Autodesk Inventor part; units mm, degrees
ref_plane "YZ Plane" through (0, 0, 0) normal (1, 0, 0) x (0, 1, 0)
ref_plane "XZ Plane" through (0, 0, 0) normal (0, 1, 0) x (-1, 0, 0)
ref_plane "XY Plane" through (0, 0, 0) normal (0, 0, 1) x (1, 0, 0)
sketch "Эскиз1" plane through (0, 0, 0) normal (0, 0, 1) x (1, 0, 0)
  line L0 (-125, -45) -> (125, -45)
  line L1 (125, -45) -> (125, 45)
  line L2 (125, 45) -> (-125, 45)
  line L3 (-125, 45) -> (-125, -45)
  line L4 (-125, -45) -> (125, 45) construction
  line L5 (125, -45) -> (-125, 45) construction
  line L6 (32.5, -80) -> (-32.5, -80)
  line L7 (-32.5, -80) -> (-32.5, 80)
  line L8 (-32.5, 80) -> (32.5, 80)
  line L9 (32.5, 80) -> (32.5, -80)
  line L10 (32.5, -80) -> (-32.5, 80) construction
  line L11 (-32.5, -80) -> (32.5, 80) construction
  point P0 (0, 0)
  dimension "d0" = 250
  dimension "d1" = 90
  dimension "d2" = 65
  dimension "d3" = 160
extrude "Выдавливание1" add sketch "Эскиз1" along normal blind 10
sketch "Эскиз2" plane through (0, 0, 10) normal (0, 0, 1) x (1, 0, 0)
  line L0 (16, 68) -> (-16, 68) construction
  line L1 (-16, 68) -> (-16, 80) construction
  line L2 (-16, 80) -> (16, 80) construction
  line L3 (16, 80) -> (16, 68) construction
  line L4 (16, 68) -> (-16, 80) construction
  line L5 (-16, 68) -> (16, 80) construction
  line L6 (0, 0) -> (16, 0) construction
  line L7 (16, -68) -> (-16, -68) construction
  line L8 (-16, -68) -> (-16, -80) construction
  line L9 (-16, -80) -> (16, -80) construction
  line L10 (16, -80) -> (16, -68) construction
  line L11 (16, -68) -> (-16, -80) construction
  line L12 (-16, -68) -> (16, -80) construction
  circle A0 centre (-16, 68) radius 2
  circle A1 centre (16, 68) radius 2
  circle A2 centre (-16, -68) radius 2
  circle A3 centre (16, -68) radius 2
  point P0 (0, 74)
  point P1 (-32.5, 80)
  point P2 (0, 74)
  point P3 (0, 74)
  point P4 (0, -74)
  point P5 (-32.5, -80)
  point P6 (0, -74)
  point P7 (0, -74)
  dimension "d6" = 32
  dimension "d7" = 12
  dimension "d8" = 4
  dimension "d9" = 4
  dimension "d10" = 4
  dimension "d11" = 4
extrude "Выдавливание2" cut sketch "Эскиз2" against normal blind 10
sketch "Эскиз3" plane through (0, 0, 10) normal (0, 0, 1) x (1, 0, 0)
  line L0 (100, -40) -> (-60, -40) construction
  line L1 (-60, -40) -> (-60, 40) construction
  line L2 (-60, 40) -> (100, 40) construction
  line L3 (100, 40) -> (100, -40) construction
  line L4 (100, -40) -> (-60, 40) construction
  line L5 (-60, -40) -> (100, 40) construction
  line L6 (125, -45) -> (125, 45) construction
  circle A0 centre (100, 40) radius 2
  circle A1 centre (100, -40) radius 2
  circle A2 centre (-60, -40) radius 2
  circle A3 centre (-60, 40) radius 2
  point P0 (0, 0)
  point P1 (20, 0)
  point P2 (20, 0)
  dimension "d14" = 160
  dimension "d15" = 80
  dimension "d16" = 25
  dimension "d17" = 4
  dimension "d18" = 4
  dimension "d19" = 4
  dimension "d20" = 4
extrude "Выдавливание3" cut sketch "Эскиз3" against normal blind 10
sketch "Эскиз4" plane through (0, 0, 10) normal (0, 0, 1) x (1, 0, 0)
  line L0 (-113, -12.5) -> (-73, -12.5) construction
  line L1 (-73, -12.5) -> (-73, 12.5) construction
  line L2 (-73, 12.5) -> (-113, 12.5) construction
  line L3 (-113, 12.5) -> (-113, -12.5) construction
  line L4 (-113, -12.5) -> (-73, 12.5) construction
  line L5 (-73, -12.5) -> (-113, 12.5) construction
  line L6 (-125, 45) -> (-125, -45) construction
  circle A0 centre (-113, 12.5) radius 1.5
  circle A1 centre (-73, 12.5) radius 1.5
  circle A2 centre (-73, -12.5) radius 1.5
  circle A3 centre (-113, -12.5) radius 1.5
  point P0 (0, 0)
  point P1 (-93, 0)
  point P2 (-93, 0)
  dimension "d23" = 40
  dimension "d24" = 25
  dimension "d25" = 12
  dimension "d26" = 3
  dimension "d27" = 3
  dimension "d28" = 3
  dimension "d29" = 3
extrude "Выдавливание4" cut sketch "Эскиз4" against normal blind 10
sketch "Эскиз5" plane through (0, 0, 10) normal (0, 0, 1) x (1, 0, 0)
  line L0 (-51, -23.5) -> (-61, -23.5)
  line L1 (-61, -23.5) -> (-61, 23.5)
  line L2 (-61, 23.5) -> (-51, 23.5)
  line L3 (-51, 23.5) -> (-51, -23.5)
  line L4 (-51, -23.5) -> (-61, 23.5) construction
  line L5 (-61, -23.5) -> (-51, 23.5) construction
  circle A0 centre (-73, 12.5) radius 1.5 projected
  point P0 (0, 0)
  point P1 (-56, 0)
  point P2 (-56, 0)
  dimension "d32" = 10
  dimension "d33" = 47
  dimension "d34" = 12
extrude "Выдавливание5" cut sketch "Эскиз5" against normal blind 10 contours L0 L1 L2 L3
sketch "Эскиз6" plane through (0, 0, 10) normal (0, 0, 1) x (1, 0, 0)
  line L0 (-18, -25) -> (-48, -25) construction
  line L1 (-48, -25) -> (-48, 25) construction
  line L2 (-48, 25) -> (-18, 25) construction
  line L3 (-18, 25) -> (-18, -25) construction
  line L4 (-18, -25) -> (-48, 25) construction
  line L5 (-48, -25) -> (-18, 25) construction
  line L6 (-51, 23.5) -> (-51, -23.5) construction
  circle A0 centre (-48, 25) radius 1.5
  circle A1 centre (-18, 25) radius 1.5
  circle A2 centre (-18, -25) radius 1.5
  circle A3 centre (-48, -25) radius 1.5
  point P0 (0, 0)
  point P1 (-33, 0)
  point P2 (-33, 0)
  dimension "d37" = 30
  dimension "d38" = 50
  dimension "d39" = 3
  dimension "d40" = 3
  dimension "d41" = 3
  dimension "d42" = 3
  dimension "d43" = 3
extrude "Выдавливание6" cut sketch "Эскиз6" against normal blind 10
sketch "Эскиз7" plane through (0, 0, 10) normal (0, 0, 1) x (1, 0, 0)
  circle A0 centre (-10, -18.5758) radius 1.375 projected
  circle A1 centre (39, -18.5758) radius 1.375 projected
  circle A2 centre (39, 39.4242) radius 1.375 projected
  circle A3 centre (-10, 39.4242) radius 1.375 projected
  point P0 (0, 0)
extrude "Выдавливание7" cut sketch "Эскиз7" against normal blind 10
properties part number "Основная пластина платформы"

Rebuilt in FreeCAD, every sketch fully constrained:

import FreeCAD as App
import Part
import Sketcher

V = App.Vector

doc = App.newDocument("Part")
params = doc.addObject("Spreadsheet::Sheet", "Params")
for row, (alias, value) in enumerate([
    ("sketch1_width", "65 mm"),
    ("sketch1_height", "90 mm"),
    ("sketch1_height2", "35 mm"),
    ("pad1_length", "10 mm"),
    ("sketch2_diameter", "4 mm"),
    ("pocket1_length", "10 mm"),
    ("sketch3_diameter", "4 mm"),
    ("pocket2_length", "10 mm"),
    ("sketch4_diameter", "3 mm"),
    ("pocket3_length", "10 mm"),
    ("sketch5_width", "10 mm"),
    ("sketch5_height", "47 mm"),
    ("pocket4_length", "10 mm"),
    ("sketch6_diameter", "3 mm"),
    ("pocket5_length", "10 mm"),
    ("sketch7_diameter", "2.75 mm"),
    ("pocket6_length", "10 mm"),
], start=1):
    params.set(f"A{row}", alias)
    params.set(f"B{row}", "=" + value)
    params.setAlias(f"B{row}", alias)

body = doc.addObject("PartDesign::Body", "Body")

# Sketch on XY plane
sketch1 = body.newObject("Sketcher::SketchObject", "Sketch")
sketch1.AttachmentSupport = (doc.getObject("XY_Plane"), [""])
sketch1.MapMode = "FlatFace"
sketch1.addGeometry([
    Part.LineSegment(V(-125, 45, 0), V(-125, -45, 0)),  # 0
    Part.LineSegment(V(-125, -45, 0), V(-32, -45, 0)),  # 1
    Part.LineSegment(V(-32, -45, 0), V(-32, -80, 0)),  # 2
    Part.LineSegment(V(-32, -80, 0), V(32, -80, 0)),  # 3
    Part.LineSegment(V(32, -80, 0), V(32, -45, 0)),  # 4
    Part.LineSegment(V(32, -45, 0), V(125, -45, 0)),  # 5
    Part.LineSegment(V(125, -45, 0), V(125, 45, 0)),  # 6
    Part.LineSegment(V(125, 45, 0), V(32, 45, 0)),  # 7
    Part.LineSegment(V(32, 45, 0), V(32, 80, 0)),  # 8
    Part.LineSegment(V(32, 80, 0), V(-32, 80, 0)),  # 9
    Part.LineSegment(V(-32, 80, 0), V(-32, 45, 0)),  # 10
    Part.LineSegment(V(-32, 45, 0), V(-125, 45, 0)),  # 11
], False)
sketch1.addConstraint([
    Sketcher.Constraint("Coincident", 0, 2, 1, 1),
    Sketcher.Constraint("Coincident", 1, 2, 2, 1),
    Sketcher.Constraint("Coincident", 2, 2, 3, 1),
    Sketcher.Constraint("Coincident", 3, 2, 4, 1),
    Sketcher.Constraint("Coincident", 4, 2, 5, 1),
    Sketcher.Constraint("Coincident", 5, 2, 6, 1),
    Sketcher.Constraint("Coincident", 6, 2, 7, 1),
    Sketcher.Constraint("Coincident", 7, 2, 8, 1),
    Sketcher.Constraint("Coincident", 8, 2, 9, 1),
    Sketcher.Constraint("Coincident", 9, 2, 10, 1),
    Sketcher.Constraint("Coincident", 10, 2, 11, 1),
    Sketcher.Constraint("Coincident", 11, 2, 0, 1),
    Sketcher.Constraint("Vertical", 0),
    Sketcher.Constraint("Horizontal", 1),
    Sketcher.Constraint("Vertical", 2),
    Sketcher.Constraint("Horizontal", 3),
    Sketcher.Constraint("Vertical", 4),
    Sketcher.Constraint("Horizontal", 5),
    Sketcher.Constraint("Vertical", 6),
    Sketcher.Constraint("Horizontal", 7),
    Sketcher.Constraint("Vertical", 8),
    Sketcher.Constraint("Horizontal", 9),
    Sketcher.Constraint("Vertical", 10),
    Sketcher.Constraint("Horizontal", 11),
    Sketcher.Constraint("Symmetric", 0, 2, 6, 2, -1, 1),
    Sketcher.Constraint("Symmetric", 2, 2, 8, 2, -1, 1),
    Sketcher.Constraint("Symmetric", 4, 2, 10, 2, -1, 1),
    Sketcher.Constraint("Symmetric", 1, 2, 4, 2, -2),
    Sketcher.Constraint("DistanceX", 3, 1, 3, 2, 65.0),
    Sketcher.Constraint("DistanceY", 0, 2, 0, 1, 90.0),
    Sketcher.Constraint("DistanceX", 0, 2, 5, 2, 250.0),
    Sketcher.Constraint("DistanceY", 2, 2, 2, 1, 35.0),
])
sketch1.setExpression("Constraints[28]", "Params.sketch1_width")
sketch1.setExpression("Constraints[29]", "Params.sketch1_height")
sketch1.setExpression("Constraints[31]", "Params.sketch1_height2")
pad1 = body.newObject("PartDesign::Pad", "Pad")
pad1.Profile = sketch1
pad1.setExpression("Length", "Params.pad1_length")

# Sketch on XY plane
sketch2 = body.newObject("Sketcher::SketchObject", "Sketch001")
sketch2.AttachmentSupport = (doc.getObject("XY_Plane"), [""])
sketch2.MapMode = "FlatFace"
sketch2.AttachmentOffset = App.Placement(V(0, 0, 10), App.Rotation())
sketch2.addGeometry([
    Part.Circle(V(-16, 68, 0), V(0, 0, 1), 2),
    Part.Circle(V(16, 68, 0), V(0, 0, 1), 2),
    Part.Circle(V(-16, -68, 0), V(0, 0, 1), 2),
    Part.Circle(V(16, -68, 0), V(0, 0, 1), 2),
], False)
sketch2.addConstraint([
    Sketcher.Constraint("Equal", 0, 1),
    Sketcher.Constraint("Equal", 1, 2),
    Sketcher.Constraint("Equal", 2, 3),
    Sketcher.Constraint("Symmetric", 1, 3, 2, 3, -1, 1),
    Sketcher.Constraint("Symmetric", 0, 3, 3, 3, -1, 1),
    Sketcher.Constraint("Symmetric", 0, 3, 1, 3, -2),
    Sketcher.Constraint("Diameter", 0, 4.0),
    Sketcher.Constraint("DistanceX", 0, 3, 1, 3, 32.0),
    Sketcher.Constraint("DistanceY", -1, 1, 0, 3, 68.0),
])
sketch2.setExpression("Constraints[6]", "Params.sketch2_diameter")
pocket1 = body.newObject("PartDesign::Pocket", "Pocket")
pocket1.Profile = sketch2
pocket1.setExpression("Length", "Params.pocket1_length")

# Sketch on XY plane
sketch3 = body.newObject("Sketcher::SketchObject", "Sketch002")
sketch3.AttachmentSupport = (doc.getObject("XY_Plane"), [""])
sketch3.MapMode = "FlatFace"
sketch3.AttachmentOffset = App.Placement(V(0, 0, 10), App.Rotation())
sketch3.addGeometry([
    Part.Circle(V(100, 40, 0), V(0, 0, 1), 2),
    Part.Circle(V(100, -40, 0), V(0, 0, 1), 2),
    Part.Circle(V(-60, -40, 0), V(0, 0, 1), 2),
    Part.Circle(V(-60, 40, 0), V(0, 0, 1), 2),
], False)
sketch3.addConstraint([
    Sketcher.Constraint("Equal", 0, 1),
    Sketcher.Constraint("Equal", 1, 2),
    Sketcher.Constraint("Equal", 2, 3),
    Sketcher.Constraint("Symmetric", 0, 3, 1, 3, -1),
    Sketcher.Constraint("Symmetric", 2, 3, 3, 3, -1),
    Sketcher.Constraint("Horizontal", 1, 3, 2, 3),
    Sketcher.Constraint("Diameter", 0, 4.0),
    Sketcher.Constraint("DistanceY", 1, 3, 0, 3, 80.0),
    Sketcher.Constraint("DistanceX", 2, 3, 1, 3, 160.0),
    Sketcher.Constraint("DistanceX", -1, 1, 0, 3, 100.0),
])
sketch3.setExpression("Constraints[6]", "Params.sketch3_diameter")
pocket2 = body.newObject("PartDesign::Pocket", "Pocket001")
pocket2.Profile = sketch3
pocket2.setExpression("Length", "Params.pocket2_length")

# Sketch on XY plane
sketch4 = body.newObject("Sketcher::SketchObject", "Sketch003")
sketch4.AttachmentSupport = (doc.getObject("XY_Plane"), [""])
sketch4.MapMode = "FlatFace"
sketch4.AttachmentOffset = App.Placement(V(0, 0, 10), App.Rotation())
sketch4.addGeometry([
    Part.Circle(V(-113, 12.5, 0), V(0, 0, 1), 1.5),
    Part.Circle(V(-73, 12.5, 0), V(0, 0, 1), 1.5),
    Part.Circle(V(-73, -12.5, 0), V(0, 0, 1), 1.5),
    Part.Circle(V(-113, -12.5, 0), V(0, 0, 1), 1.5),
], False)
sketch4.addConstraint([
    Sketcher.Constraint("Equal", 0, 1),
    Sketcher.Constraint("Equal", 1, 2),
    Sketcher.Constraint("Equal", 2, 3),
    Sketcher.Constraint("Symmetric", 1, 3, 2, 3, -1),
    Sketcher.Constraint("Symmetric", 0, 3, 3, 3, -1),
    Sketcher.Constraint("Horizontal", 0, 3, 1, 3),
    Sketcher.Constraint("Diameter", 0, 3.0),
    Sketcher.Constraint("DistanceX", 0, 3, 1, 3, 40.0),
    Sketcher.Constraint("DistanceY", 2, 3, 1, 3, 25.0),
    Sketcher.Constraint("DistanceX", 0, 3, -1, 1, 113.0),
])
sketch4.setExpression("Constraints[6]", "Params.sketch4_diameter")
pocket3 = body.newObject("PartDesign::Pocket", "Pocket002")
pocket3.Profile = sketch4
pocket3.setExpression("Length", "Params.pocket3_length")

# Sketch on XY plane
sketch5 = body.newObject("Sketcher::SketchObject", "Sketch004")
sketch5.AttachmentSupport = (doc.getObject("XY_Plane"), [""])
sketch5.MapMode = "FlatFace"
sketch5.AttachmentOffset = App.Placement(V(0, 0, 10), App.Rotation())
sketch5.addGeometry([
    Part.LineSegment(V(-61, -24, 0), V(-51, -24, 0)),
    Part.LineSegment(V(-51, -24, 0), V(-51, 24, 0)),
    Part.LineSegment(V(-51, 24, 0), V(-61, 24, 0)),
    Part.LineSegment(V(-61, 24, 0), V(-61, -24, 0)),
], False)
sketch5.addConstraint([
    Sketcher.Constraint("Coincident", 0, 2, 1, 1),
    Sketcher.Constraint("Coincident", 1, 2, 2, 1),
    Sketcher.Constraint("Coincident", 2, 2, 3, 1),
    Sketcher.Constraint("Coincident", 3, 2, 0, 1),
    Sketcher.Constraint("Horizontal", 0),
    Sketcher.Constraint("Vertical", 1),
    Sketcher.Constraint("Horizontal", 2),
    Sketcher.Constraint("Vertical", 3),
    Sketcher.Constraint("DistanceX", 0, 1, 0, 2, 10.0),
    Sketcher.Constraint("DistanceY", 1, 1, 1, 2, 47.0),
    Sketcher.Constraint("DistanceX", 0, 2, -1, 1, 51.0),
    Sketcher.Constraint("DistanceY", 0, 2, -1, 1, 23.5),
])
sketch5.setExpression("Constraints[8]", "Params.sketch5_width")
sketch5.setExpression("Constraints[9]", "Params.sketch5_height")
pocket4 = body.newObject("PartDesign::Pocket", "Pocket003")
pocket4.Profile = sketch5
pocket4.setExpression("Length", "Params.pocket4_length")

# Sketch on XY plane
sketch6 = body.newObject("Sketcher::SketchObject", "Sketch005")
sketch6.AttachmentSupport = (doc.getObject("XY_Plane"), [""])
sketch6.MapMode = "FlatFace"
sketch6.AttachmentOffset = App.Placement(V(0, 0, 10), App.Rotation())
sketch6.addGeometry([
    Part.Circle(V(-48, 25, 0), V(0, 0, 1), 1.5),
    Part.Circle(V(-18, 25, 0), V(0, 0, 1), 1.5),
    Part.Circle(V(-18, -25, 0), V(0, 0, 1), 1.5),
    Part.Circle(V(-48, -25, 0), V(0, 0, 1), 1.5),
], False)
sketch6.addConstraint([
    Sketcher.Constraint("Equal", 0, 1),
    Sketcher.Constraint("Equal", 1, 2),
    Sketcher.Constraint("Equal", 2, 3),
    Sketcher.Constraint("Symmetric", 1, 3, 2, 3, -1),
    Sketcher.Constraint("Symmetric", 0, 3, 3, 3, -1),
    Sketcher.Constraint("Horizontal", 0, 3, 1, 3),
    Sketcher.Constraint("Diameter", 0, 3.0),
    Sketcher.Constraint("DistanceX", 0, 3, 1, 3, 30.0),
    Sketcher.Constraint("DistanceY", 2, 3, 1, 3, 50.0),
    Sketcher.Constraint("DistanceX", 0, 3, -1, 1, 48.0),
])
sketch6.setExpression("Constraints[6]", "Params.sketch6_diameter")
pocket5 = body.newObject("PartDesign::Pocket", "Pocket004")
pocket5.Profile = sketch6
pocket5.setExpression("Length", "Params.pocket5_length")

# Sketch on XY plane
sketch7 = body.newObject("Sketcher::SketchObject", "Sketch006")
sketch7.AttachmentSupport = (doc.getObject("XY_Plane"), [""])
sketch7.MapMode = "FlatFace"
sketch7.AttachmentOffset = App.Placement(V(0, 0, 10), App.Rotation())
sketch7.addGeometry([
    Part.Circle(V(-10, -18.6, 0), V(0, 0, 1), 1.4),
    Part.Circle(V(39, -18.6, 0), V(0, 0, 1), 1.4),
    Part.Circle(V(39, 39.4, 0), V(0, 0, 1), 1.4),
    Part.Circle(V(-10, 39.4, 0), V(0, 0, 1), 1.4),
], False)
sketch7.addConstraint([
    Sketcher.Constraint("Equal", 0, 1),
    Sketcher.Constraint("Equal", 1, 2),
    Sketcher.Constraint("Equal", 2, 3),
    Sketcher.Constraint("Horizontal", 0, 3, 1, 3),
    Sketcher.Constraint("Horizontal", 2, 3, 3, 3),
    Sketcher.Constraint("Vertical", 1, 3, 2, 3),
    Sketcher.Constraint("Vertical", 0, 3, 3, 3),
    Sketcher.Constraint("Diameter", 0, 2.75),
    Sketcher.Constraint("DistanceX", 0, 3, -1, 1, 10.0),
    Sketcher.Constraint("DistanceX", -1, 1, 1, 3, 39.0),
    Sketcher.Constraint("DistanceY", 1, 3, 2, 3, 58.0),
    Sketcher.Constraint("DistanceY", 0, 3, -1, 1, 18.5758),
])
sketch7.setExpression("Constraints[7]", "Params.sketch7_diameter")
pocket6 = body.newObject("PartDesign::Pocket", "Pocket005")
pocket6.Profile = sketch7
pocket6.setExpression("Length", "Params.pocket6_length")

doc.recompute()
